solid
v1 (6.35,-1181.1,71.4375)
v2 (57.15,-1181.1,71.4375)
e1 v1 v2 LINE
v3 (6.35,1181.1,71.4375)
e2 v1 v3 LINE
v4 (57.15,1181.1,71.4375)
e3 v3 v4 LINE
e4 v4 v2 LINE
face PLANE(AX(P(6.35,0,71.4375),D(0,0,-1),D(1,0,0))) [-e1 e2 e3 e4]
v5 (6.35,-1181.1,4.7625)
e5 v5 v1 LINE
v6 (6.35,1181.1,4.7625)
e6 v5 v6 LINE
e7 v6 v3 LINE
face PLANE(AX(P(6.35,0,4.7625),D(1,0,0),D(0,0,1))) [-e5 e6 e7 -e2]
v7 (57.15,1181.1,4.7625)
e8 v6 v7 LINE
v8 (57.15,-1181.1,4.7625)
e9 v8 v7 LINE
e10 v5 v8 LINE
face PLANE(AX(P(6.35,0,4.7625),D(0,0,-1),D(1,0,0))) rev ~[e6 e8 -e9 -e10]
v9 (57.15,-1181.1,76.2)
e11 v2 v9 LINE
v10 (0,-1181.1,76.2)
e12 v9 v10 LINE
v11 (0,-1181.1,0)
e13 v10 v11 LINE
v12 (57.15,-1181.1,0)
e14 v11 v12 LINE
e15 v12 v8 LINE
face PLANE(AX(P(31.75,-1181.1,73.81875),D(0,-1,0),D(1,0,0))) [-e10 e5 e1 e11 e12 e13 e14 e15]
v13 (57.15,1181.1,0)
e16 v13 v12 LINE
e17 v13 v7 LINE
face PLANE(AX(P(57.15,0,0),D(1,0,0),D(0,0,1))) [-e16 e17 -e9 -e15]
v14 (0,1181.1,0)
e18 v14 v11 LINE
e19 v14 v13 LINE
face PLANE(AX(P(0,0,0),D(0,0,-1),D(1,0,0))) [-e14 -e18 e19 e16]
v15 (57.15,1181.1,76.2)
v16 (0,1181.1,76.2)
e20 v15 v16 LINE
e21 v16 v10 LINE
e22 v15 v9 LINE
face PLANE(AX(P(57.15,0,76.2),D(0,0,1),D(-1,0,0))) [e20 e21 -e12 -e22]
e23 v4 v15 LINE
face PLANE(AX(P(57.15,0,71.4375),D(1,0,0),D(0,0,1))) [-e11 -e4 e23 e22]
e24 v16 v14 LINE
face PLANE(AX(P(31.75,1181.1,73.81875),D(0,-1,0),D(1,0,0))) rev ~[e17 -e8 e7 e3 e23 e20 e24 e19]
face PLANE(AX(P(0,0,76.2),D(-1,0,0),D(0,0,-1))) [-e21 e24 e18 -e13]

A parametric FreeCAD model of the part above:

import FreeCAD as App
import Part
import Sketcher
Q = App.Units.Quantity


def add_polygon(sketch, points):
    """Adds a closed chain of lines whose ends are joined by coincident constraints."""
    first, n = sketch.GeometryCount, len(points)
    for a, b in zip(points, points[1:] + points[:1]):
        sketch.addGeometry(Part.LineSegment(App.Vector(*a, 0), App.Vector(*b, 0)), False)
    for i in range(n):
        sketch.addConstraint(Sketcher.Constraint("Coincident", first + i, 2, first + (i + 1) % n, 1))

doc = App.newDocument("Part")
body = doc.addObject("PartDesign::Body", "Body")

# Sketch on XZ plane
sketch1 = doc.addObject("Sketcher::SketchObject", "Sketch")
body.addObject(sketch1)
sketch1.AttachmentSupport = (doc.XZ_Plane, [""])
sketch1.MapMode = "FlatFace"
add_polygon(sketch1, [(6.35, 71.4375), (57.15, 71.4375), (57.15, 76.2), (0, 76.2), (0, 0), (57.15, 0), (57.15, 4.7625), (6.35, 4.7625)])  # lines 0-7
sketch1.addConstraint([
    Sketcher.Constraint("Horizontal", 0),
    Sketcher.Constraint("Vertical", 1),
    Sketcher.Constraint("Horizontal", 2),
    Sketcher.Constraint("Vertical", 3),
    Sketcher.Constraint("Horizontal", 4),
    Sketcher.Constraint("Vertical", 5),
    Sketcher.Constraint("Horizontal", 6),
    Sketcher.Constraint("Vertical", 7),
    Sketcher.Constraint("Coincident", 3, 2, -1, 1),
    Sketcher.Constraint("Vertical", 1, 2, 4, 2),
    Sketcher.Constraint("Equal", 1, 5),
    Sketcher.Constraint("DistanceX", 0, 1, 0, 2, Q("2 in")),
    Sketcher.Constraint("DistanceY", 3, 2, 3, 1, Q("3 in")),
    Sketcher.Constraint("DistanceX", 2, 2, 2, 1, Q("2.25 in")),
    Sketcher.Constraint("DistanceY", 1, 1, 1, 2, Q("0.1875 in")),
])
pad1 = doc.addObject("PartDesign::Pad", "Pad")
body.addObject(pad1)
pad1.Profile = sketch1
pad1.Length = Q("93 in")
pad1.Midplane = True

doc.recompute()
